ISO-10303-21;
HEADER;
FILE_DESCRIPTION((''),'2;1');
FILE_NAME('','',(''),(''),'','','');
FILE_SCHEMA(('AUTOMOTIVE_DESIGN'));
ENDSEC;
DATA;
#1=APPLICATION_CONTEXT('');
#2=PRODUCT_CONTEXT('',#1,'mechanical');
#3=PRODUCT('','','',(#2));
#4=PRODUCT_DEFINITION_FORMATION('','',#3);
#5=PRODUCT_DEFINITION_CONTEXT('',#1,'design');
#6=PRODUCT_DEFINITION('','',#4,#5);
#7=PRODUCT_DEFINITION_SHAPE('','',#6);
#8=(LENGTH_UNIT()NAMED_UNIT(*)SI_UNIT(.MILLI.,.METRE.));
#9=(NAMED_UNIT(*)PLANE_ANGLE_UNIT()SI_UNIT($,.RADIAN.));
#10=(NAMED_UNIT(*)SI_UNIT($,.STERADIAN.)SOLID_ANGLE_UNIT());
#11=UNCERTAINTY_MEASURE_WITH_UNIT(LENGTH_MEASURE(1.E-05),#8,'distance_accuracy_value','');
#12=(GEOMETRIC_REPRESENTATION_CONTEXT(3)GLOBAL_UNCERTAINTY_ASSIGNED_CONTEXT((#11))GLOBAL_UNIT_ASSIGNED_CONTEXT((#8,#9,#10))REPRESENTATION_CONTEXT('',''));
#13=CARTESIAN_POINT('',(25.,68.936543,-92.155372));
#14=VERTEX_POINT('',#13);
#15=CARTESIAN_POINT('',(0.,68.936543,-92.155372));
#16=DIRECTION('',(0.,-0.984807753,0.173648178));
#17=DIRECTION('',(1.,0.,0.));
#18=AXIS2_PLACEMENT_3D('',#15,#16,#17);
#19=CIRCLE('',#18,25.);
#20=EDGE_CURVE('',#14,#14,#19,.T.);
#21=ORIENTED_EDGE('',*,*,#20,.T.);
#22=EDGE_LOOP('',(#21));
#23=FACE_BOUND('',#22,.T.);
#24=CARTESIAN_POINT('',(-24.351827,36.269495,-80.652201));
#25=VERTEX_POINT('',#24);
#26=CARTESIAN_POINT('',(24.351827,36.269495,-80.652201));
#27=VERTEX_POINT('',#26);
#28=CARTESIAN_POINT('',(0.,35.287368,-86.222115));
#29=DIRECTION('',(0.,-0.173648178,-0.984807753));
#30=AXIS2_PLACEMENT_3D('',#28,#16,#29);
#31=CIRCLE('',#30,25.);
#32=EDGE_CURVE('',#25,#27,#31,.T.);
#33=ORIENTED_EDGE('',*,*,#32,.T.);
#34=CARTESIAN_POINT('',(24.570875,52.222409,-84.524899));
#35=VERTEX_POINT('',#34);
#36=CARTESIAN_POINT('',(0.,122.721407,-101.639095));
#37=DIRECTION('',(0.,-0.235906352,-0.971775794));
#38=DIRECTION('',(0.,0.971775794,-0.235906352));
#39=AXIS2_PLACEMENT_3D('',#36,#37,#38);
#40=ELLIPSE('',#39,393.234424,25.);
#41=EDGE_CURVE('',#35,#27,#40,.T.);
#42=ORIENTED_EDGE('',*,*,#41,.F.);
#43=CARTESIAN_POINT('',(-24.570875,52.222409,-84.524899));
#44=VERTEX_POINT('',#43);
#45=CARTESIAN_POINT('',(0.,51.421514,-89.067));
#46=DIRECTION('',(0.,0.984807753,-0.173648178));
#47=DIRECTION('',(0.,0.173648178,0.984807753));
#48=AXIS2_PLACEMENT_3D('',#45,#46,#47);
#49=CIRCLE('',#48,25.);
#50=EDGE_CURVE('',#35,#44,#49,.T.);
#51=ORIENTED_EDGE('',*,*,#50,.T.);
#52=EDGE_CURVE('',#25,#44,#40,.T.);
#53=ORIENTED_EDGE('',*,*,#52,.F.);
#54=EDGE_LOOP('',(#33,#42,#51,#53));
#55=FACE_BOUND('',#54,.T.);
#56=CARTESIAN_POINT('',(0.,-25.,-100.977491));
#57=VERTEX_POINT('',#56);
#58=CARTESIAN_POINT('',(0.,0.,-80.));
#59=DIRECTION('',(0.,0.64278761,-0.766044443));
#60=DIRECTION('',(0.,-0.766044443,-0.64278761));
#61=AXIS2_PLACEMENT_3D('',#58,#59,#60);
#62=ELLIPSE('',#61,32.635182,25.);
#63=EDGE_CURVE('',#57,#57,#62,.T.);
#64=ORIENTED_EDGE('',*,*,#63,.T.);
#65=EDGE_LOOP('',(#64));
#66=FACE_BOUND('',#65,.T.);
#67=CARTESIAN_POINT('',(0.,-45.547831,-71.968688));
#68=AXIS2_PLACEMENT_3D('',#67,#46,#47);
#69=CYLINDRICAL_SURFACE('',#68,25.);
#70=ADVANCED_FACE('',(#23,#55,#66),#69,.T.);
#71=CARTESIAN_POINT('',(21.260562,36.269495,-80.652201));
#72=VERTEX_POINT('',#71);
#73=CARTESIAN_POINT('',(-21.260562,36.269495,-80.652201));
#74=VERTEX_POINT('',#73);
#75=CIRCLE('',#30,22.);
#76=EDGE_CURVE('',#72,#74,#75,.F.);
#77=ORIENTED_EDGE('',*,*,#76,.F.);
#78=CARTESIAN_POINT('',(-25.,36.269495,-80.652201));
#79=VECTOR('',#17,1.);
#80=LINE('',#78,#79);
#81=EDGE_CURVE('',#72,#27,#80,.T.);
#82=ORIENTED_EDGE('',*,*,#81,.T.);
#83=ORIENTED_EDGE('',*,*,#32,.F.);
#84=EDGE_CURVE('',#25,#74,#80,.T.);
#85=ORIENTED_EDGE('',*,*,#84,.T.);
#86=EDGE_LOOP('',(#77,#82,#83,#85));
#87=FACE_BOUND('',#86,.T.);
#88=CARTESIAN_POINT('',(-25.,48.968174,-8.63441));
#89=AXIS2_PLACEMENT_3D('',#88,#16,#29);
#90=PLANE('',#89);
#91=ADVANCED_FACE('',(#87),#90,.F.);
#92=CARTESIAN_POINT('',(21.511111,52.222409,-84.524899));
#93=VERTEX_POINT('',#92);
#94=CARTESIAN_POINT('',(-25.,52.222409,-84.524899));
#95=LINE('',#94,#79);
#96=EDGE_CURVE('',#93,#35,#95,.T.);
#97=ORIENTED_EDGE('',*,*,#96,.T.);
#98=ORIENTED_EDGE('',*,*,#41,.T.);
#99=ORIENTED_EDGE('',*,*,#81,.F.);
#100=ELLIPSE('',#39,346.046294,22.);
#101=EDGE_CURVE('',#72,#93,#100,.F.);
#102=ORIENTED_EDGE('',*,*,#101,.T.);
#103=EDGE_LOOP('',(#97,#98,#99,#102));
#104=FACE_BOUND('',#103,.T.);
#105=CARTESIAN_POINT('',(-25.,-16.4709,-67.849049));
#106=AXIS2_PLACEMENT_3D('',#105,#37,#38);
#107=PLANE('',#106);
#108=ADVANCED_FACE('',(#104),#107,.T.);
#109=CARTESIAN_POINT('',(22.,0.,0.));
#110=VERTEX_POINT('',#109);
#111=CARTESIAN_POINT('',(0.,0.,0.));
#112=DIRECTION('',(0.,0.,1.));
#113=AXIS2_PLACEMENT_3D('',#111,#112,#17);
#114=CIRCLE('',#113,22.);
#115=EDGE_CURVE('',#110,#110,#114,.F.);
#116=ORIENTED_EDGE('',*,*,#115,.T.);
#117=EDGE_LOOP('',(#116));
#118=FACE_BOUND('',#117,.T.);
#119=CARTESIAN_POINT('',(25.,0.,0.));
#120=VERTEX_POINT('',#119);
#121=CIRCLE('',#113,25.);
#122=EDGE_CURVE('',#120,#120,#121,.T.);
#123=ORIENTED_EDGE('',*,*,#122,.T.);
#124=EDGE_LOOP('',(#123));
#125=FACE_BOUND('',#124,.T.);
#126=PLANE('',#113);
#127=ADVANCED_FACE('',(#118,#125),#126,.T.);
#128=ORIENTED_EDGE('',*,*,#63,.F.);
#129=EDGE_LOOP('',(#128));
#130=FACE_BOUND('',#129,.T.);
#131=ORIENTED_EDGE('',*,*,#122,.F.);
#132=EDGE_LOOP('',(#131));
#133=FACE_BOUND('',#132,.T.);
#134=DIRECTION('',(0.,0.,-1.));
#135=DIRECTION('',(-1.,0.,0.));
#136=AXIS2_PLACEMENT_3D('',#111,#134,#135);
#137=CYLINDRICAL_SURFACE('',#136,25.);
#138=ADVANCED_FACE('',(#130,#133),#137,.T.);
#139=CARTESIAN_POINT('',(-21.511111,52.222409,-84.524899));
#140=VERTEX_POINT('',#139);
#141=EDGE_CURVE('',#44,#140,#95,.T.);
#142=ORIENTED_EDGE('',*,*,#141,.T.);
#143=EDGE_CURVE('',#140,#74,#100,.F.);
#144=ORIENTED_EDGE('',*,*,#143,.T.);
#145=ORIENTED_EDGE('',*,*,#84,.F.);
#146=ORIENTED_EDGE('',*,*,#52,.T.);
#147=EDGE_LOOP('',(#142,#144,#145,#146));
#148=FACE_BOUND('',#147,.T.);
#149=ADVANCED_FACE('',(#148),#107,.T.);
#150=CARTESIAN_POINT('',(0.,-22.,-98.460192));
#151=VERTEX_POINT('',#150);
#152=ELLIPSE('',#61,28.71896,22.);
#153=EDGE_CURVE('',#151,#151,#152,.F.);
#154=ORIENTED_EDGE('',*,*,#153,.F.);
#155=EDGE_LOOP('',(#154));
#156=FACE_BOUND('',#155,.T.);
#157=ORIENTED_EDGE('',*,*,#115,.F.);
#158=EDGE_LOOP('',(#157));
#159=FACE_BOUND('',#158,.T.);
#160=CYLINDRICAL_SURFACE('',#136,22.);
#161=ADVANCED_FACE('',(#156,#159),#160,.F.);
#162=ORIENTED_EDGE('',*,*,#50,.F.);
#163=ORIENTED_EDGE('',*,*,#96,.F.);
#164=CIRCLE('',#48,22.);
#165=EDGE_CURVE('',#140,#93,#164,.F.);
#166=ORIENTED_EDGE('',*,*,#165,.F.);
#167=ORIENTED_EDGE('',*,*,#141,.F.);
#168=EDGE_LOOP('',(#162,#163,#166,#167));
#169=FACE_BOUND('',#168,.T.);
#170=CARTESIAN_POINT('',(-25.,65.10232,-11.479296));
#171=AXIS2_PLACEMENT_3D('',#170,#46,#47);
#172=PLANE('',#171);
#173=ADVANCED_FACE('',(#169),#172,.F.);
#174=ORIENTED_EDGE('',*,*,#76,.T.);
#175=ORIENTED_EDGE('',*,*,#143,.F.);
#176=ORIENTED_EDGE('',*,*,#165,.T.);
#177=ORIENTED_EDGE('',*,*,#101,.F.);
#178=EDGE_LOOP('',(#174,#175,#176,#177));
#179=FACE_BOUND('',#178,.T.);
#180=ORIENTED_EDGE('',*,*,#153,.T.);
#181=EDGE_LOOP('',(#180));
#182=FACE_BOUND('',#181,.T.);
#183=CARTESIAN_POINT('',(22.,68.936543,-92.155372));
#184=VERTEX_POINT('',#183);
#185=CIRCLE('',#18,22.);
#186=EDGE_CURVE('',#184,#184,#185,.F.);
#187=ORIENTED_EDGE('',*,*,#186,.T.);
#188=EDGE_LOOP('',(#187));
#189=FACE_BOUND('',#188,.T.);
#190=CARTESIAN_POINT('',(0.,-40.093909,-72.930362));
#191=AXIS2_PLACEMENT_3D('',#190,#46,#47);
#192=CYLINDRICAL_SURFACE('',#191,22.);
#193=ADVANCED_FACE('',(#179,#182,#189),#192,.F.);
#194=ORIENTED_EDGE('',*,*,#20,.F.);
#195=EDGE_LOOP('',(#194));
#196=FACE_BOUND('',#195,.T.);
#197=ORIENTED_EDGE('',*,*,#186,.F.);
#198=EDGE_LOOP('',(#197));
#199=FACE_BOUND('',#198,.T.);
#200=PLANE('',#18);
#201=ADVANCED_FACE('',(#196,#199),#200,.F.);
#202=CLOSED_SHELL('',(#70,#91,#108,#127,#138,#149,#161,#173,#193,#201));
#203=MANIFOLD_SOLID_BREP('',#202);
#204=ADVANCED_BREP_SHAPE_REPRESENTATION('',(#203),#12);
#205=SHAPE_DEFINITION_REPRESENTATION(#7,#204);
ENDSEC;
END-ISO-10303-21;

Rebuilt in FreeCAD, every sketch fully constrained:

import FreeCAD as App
import Part
import Sketcher
from FreeCAD import Vector
Q = App.Units.Quantity

doc = App.newDocument("Part")
body = doc.addObject("PartDesign::Body", "Body")

sketch1 = doc.addObject("Sketcher::SketchObject", "Sketch")
body.addObject(sketch1)
sketch1.AttachmentSupport = (doc.XY_Plane, [""])
sketch1.MapMode = "FlatFace"
sketch1.addGeometry(Part.Circle(Vector(0, 0, 0), Vector(0, 0, 1), 25), False)
sketch1.addGeometry(Part.Circle(Vector(0, 0, 0), Vector(0, 0, 1), 22), False)
sketch1.addConstraint(Sketcher.Constraint("Coincident", 0, 3, -1, 1))
sketch1.addConstraint(Sketcher.Constraint("Coincident", 1, 3, -1, 1))
sketch1.addConstraint(Sketcher.Constraint("Diameter", 0, 50.0))
sketch1.addConstraint(Sketcher.Constraint("Diameter", 1, 44.0))

sketch2 = doc.addObject("Sketcher::SketchObject", "Sketch001")
body.addObject(sketch2)
sketch2.AttachmentSupport = (doc.YZ_Plane, [""])
sketch2.MapMode = "FlatFace"
sketch2.addGeometry(Part.LineSegment(Vector(0, 0, 0), Vector(0, -80, 0)), False)
sketch2.addGeometry(Part.LineSegment(Vector(0, -80, 0), Vector(68.936543, -92.155372, 0)), False)
sketch2.addConstraint(Sketcher.Constraint("Coincident", 0, 2, 1, 1))
sketch2.addConstraint(Sketcher.Constraint("Vertical", 0))
sketch2.addConstraint(Sketcher.Constraint("Coincident", 0, 1, -1, 1))
sketch2.addConstraint(Sketcher.Constraint("DistanceY", 0, 2, 0, 1, 80.0))
sketch2.addConstraint(Sketcher.Constraint("Angle", 1, Q("-10 deg")))
sketch2.addConstraint(Sketcher.Constraint("Distance", 1, 70.0))
doc.recompute()

additivepipe = doc.addObject("PartDesign::AdditivePipe", "AdditivePipe")
body.addObject(additivepipe)
additivepipe.Profile = sketch1
additivepipe.Spine = (sketch2, ["Edge1", "Edge2"])
additivepipe.Transition = "Right corner"

sketch3 = doc.addObject("Sketcher::SketchObject", "Sketch002")
body.addObject(sketch3)
sketch3.AttachmentSupport = (doc.YZ_Plane, [""])
sketch3.MapMode = "FlatFace"
sketch3.addGeometry(Part.LineSegment(Vector(30.946164, -110.842309, 0), Vector(47.08031, -113.687194, 0)), False)
sketch3.addGeometry(Part.LineSegment(Vector(47.08031, -113.687194, 0), Vector(50.41163, -94.794337, 0)), False)
sketch3.addGeometry(Part.LineSegment(Vector(50.41163, -94.794337, 0), Vector(52.222409, -84.524899, 0)), False)
sketch3.addGeometry(Part.LineSegment(Vector(52.222409, -84.524899, 0), Vector(36.269495, -80.652201, 0)), False)
sketch3.addGeometry(Part.LineSegment(Vector(36.269495, -80.652201, 0), Vector(30.946164, -110.842309, 0)), False)
sketch3.addConstraint(Sketcher.Constraint("Coincident", 0, 2, 1, 1))
sketch3.addConstraint(Sketcher.Constraint("Coincident", 1, 2, 2, 1))
sketch3.addConstraint(Sketcher.Constraint("Coincident", 2, 2, 3, 1))
sketch3.addConstraint(Sketcher.Constraint("Coincident", 3, 2, 4, 1))
sketch3.addConstraint(Sketcher.Constraint("Coincident", 4, 2, 0, 1))
sketch3.addConstraint(Sketcher.Constraint("Perpendicular", 0, 1))
sketch3.addConstraint(Sketcher.Constraint("Parallel", 1, 2))
sketch3.addConstraint(Sketcher.Constraint("Parallel", 2, 4))
sketch3.addConstraint(Sketcher.Constraint("Angle", 0, Q("-10 deg")))
sketch3.addConstraint(Sketcher.Constraint("DistanceY", 2, 2, -1, 1, 84.524899))
sketch3.addConstraint(Sketcher.Constraint("DistanceY", 3, 2, -1, 1, 80.652201))
sketch3.addConstraint(Sketcher.Constraint("DistanceX", 0, 2, 2, 2, 5.142099))
sketch3.addConstraint(Sketcher.Constraint("Distance", 0, 16.383041))
sketch3.addConstraint(Sketcher.Constraint("Distance", 1, 19.18431))
sketch3.addConstraint(Sketcher.Constraint("DistanceX", -1, 1, 0, 2, 47.08031))
pocket1 = doc.addObject("PartDesign::Pocket", "Pocket")
body.addObject(pocket1)
pocket1.Profile = sketch3
pocket1.Type = "ThroughAll"
pocket1.Midplane = True

doc.recompute()
